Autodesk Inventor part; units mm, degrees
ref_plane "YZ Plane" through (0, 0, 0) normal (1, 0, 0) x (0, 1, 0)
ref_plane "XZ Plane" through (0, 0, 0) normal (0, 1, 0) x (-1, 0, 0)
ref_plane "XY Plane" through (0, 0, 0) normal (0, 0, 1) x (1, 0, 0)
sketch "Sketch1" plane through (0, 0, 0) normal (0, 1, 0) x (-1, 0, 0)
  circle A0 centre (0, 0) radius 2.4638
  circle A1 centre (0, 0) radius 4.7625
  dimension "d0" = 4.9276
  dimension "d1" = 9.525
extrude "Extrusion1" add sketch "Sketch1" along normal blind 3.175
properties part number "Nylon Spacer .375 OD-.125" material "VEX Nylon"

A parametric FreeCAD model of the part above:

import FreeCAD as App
import Part
import Sketcher

V = App.Vector
Q = App.Units.Quantity

doc = App.newDocument("Part")
body = doc.addObject("PartDesign::Body", "Body")

sketch1 = body.newObject("Sketcher::SketchObject", "Sketch")
sketch1.AttachmentSupport = (doc.getObject("XZ_Plane"), [""])
sketch1.MapMode = "FlatFace"
sketch1.addGeometry([
    Part.Circle(V(0, 0, 0), V(0, 0, 1), 4.8),
    Part.Circle(V(0, 0, 0), V(0, 0, 1), 2.5),
], False)
sketch1.addConstraint([
    Sketcher.Constraint("Coincident", 0, 3, -1, 1),
    Sketcher.Constraint("Coincident", 1, 3, -1, 1),
    Sketcher.Constraint("Diameter", 0, Q("0.375 in")),
    Sketcher.Constraint("Diameter", 1, Q("0.194 in")),
])
pad1 = body.newObject("PartDesign::Pad", "Pad")
pad1.Profile = sketch1
pad1.Length = Q("0.125 in")
pad1.Reversed = True

doc.recompute()
